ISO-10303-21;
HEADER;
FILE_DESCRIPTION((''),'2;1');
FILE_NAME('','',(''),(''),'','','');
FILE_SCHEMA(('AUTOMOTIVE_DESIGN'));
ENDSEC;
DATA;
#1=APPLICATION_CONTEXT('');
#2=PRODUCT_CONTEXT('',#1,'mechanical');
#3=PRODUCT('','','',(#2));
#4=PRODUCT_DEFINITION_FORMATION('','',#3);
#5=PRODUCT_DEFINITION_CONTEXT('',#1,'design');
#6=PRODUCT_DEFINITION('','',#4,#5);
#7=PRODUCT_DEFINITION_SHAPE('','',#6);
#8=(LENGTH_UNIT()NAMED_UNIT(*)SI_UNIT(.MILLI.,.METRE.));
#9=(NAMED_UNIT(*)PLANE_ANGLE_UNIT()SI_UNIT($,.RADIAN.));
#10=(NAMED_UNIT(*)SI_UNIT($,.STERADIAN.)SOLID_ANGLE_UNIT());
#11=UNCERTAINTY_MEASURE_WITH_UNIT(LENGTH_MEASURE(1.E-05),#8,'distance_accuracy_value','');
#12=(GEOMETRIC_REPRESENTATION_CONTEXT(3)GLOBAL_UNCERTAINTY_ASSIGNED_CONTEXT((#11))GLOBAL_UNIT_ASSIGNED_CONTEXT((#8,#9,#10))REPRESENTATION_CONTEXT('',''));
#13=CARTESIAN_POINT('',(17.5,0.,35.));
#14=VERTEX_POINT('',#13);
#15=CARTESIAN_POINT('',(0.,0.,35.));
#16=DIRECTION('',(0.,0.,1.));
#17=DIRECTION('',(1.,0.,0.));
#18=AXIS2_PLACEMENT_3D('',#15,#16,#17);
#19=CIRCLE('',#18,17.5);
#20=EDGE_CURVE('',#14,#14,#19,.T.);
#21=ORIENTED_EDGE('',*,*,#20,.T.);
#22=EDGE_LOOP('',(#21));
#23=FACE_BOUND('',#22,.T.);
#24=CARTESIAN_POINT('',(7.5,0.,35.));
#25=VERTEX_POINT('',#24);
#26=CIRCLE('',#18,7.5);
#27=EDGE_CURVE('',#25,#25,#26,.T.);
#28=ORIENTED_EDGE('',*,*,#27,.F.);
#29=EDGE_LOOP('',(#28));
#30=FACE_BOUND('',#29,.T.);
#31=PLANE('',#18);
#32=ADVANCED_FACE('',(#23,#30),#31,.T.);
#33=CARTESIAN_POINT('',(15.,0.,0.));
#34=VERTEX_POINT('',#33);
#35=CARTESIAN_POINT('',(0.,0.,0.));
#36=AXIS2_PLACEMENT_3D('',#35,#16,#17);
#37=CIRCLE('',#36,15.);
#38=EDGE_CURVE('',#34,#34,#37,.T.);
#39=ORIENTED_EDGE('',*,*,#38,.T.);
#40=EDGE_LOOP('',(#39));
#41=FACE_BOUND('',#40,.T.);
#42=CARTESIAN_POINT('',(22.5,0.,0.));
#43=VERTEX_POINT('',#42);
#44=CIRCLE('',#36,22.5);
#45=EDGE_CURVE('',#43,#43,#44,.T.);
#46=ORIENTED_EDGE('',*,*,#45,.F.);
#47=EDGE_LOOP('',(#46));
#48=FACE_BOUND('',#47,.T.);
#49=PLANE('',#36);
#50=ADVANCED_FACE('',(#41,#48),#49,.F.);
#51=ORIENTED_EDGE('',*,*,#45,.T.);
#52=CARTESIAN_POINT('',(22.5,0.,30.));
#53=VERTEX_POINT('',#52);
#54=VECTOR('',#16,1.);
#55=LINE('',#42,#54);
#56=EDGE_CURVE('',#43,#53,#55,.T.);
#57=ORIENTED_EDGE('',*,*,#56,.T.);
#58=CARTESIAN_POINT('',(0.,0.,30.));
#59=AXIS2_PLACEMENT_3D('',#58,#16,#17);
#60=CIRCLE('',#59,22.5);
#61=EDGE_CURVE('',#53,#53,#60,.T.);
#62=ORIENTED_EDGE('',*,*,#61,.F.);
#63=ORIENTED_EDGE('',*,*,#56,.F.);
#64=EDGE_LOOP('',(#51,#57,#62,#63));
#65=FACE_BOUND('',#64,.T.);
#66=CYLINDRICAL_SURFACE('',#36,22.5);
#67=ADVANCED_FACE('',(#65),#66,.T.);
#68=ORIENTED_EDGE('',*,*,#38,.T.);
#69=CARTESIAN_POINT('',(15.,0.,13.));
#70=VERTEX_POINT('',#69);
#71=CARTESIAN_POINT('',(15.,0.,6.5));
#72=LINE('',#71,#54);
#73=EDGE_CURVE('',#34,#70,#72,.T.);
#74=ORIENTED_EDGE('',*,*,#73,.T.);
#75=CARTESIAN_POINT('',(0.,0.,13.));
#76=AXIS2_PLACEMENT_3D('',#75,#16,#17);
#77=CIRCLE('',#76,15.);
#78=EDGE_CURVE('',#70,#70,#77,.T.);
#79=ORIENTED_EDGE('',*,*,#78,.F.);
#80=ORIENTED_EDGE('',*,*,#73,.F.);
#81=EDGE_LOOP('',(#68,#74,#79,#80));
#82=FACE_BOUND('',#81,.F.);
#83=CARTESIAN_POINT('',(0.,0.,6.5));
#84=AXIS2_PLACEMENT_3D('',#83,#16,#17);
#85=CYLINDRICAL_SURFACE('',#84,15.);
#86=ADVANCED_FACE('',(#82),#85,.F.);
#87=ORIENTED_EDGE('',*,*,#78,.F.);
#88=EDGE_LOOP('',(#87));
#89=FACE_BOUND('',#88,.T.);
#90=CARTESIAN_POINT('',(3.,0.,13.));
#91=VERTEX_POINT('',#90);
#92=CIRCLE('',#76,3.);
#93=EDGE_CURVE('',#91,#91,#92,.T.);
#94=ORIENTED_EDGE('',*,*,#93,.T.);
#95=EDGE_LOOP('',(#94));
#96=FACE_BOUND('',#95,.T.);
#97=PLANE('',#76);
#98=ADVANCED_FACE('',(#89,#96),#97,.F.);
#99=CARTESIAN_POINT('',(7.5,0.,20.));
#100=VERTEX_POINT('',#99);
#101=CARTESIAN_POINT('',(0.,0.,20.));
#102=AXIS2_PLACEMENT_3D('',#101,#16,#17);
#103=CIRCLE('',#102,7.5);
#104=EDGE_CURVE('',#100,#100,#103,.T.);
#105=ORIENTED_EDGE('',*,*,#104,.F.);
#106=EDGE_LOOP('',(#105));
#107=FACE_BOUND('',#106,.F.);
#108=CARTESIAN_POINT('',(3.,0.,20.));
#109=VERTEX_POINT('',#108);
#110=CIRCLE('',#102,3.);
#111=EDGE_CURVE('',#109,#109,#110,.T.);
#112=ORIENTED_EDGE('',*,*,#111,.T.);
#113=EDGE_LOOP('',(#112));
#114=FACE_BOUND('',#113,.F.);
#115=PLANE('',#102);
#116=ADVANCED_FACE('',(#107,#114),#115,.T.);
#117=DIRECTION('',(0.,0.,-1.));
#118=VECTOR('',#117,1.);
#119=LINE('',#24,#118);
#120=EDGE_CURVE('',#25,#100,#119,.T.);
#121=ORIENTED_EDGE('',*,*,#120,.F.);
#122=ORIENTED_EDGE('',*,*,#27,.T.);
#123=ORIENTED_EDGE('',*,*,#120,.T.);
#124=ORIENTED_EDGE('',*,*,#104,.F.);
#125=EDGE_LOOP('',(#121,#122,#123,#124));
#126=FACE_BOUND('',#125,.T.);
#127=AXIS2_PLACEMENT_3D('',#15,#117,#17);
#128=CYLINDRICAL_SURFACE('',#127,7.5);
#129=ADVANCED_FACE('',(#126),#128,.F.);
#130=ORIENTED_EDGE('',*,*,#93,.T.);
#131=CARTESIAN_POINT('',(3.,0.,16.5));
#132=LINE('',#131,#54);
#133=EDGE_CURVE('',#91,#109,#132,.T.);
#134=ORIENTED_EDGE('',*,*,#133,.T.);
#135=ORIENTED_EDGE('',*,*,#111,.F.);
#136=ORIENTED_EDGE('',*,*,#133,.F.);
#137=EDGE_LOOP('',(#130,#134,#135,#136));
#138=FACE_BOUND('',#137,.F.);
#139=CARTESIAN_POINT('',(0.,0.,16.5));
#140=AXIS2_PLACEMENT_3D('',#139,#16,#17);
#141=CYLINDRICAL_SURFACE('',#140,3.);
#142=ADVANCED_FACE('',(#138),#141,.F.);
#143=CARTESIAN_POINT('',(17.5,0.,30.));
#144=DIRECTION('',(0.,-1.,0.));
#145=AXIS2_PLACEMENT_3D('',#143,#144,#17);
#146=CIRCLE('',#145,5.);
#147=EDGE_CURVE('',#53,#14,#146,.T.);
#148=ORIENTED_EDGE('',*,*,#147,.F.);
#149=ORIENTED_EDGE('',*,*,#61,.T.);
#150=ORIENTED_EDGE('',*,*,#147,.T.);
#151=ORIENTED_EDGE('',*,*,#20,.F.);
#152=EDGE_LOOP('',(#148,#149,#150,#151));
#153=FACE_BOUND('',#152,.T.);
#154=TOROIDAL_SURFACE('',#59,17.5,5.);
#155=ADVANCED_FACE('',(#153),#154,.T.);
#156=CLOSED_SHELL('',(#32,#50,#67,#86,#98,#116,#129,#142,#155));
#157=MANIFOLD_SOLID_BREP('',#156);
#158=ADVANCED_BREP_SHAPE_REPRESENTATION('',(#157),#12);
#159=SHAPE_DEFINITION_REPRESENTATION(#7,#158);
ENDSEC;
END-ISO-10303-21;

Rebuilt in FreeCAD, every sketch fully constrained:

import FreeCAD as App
import Part
import Sketcher

V = App.Vector
Q = App.Units.Quantity


def edges_at(feature, points):
    """Names of the edges that pass closest to the given points."""
    edges = feature.Shape.Edges
    near = lambda p: min(range(len(edges)), key=lambda i: edges[i].distToShape(Part.Vertex(*p))[0])
    return sorted({f"Edge{near(p) + 1}" for p in points})


def add_polygon(sketch, points):
    """Adds a closed chain of lines whose ends are joined by coincident constraints."""
    first, n = sketch.GeometryCount, len(points)
    for a, b in zip(points, points[1:] + points[:1]):
        sketch.addGeometry(Part.LineSegment(App.Vector(*a, 0), App.Vector(*b, 0)), False)
    for i in range(n):
        sketch.addConstraint(Sketcher.Constraint("Coincident", first + i, 2, first + (i + 1) % n, 1))

doc = App.newDocument("Part")
body = doc.addObject("PartDesign::Body", "Body")

sketch1 = doc.addObject("Sketcher::SketchObject", "Sketch")
body.addObject(sketch1)
sketch1.AttachmentSupport = (doc.XZ_Plane, [""])
sketch1.MapMode = "FlatFace"
add_polygon(sketch1, [(7.5, 35), (7.5, 20), (3, 20), (3, 13), (15, 13), (15, 0), (22.5, 0), (22.5, 35)])
sketch1.addConstraint([
    Sketcher.Constraint("Vertical", 0),
    Sketcher.Constraint("Horizontal", 1),
    Sketcher.Constraint("Vertical", 2),
    Sketcher.Constraint("Horizontal", 3),
    Sketcher.Constraint("Vertical", 4),
    Sketcher.Constraint("Horizontal", 5),
    Sketcher.Constraint("Vertical", 6),
    Sketcher.Constraint("Horizontal", 7),
    Sketcher.Constraint("PointOnObject", 4, 2, -1),
    Sketcher.Constraint("Equal", 7, 0),
    Sketcher.Constraint("DistanceX", 3, 1, 3, 2, Q("12 mm")),
    Sketcher.Constraint("DistanceX", 7, 2, 7, 1, Q("15 mm")),
    Sketcher.Constraint("DistanceY", 2, 2, 2, 1, Q("7 mm")),
    Sketcher.Constraint("DistanceY", 4, 2, 4, 1, Q("13 mm")),
    Sketcher.Constraint("DistanceX", 1, 2, 1, 1, Q("4.5 mm")),
    Sketcher.Constraint("DistanceX", -1, 1, 1, 2, Q("3 mm")),
])
revolution = doc.addObject("PartDesign::Revolution", "Revolution")
body.addObject(revolution)
revolution.Profile = sketch1
revolution.ReferenceAxis = (sketch1, ["V_Axis"])
revolution.Angle = 360
doc.recompute()

fillet = doc.addObject("PartDesign::Fillet", "Fillet")
body.addObject(fillet)
fillet.Base = (revolution, edges_at(revolution, [(-22.5, 0, 35)]))
fillet.Radius = 5

doc.recompute()
